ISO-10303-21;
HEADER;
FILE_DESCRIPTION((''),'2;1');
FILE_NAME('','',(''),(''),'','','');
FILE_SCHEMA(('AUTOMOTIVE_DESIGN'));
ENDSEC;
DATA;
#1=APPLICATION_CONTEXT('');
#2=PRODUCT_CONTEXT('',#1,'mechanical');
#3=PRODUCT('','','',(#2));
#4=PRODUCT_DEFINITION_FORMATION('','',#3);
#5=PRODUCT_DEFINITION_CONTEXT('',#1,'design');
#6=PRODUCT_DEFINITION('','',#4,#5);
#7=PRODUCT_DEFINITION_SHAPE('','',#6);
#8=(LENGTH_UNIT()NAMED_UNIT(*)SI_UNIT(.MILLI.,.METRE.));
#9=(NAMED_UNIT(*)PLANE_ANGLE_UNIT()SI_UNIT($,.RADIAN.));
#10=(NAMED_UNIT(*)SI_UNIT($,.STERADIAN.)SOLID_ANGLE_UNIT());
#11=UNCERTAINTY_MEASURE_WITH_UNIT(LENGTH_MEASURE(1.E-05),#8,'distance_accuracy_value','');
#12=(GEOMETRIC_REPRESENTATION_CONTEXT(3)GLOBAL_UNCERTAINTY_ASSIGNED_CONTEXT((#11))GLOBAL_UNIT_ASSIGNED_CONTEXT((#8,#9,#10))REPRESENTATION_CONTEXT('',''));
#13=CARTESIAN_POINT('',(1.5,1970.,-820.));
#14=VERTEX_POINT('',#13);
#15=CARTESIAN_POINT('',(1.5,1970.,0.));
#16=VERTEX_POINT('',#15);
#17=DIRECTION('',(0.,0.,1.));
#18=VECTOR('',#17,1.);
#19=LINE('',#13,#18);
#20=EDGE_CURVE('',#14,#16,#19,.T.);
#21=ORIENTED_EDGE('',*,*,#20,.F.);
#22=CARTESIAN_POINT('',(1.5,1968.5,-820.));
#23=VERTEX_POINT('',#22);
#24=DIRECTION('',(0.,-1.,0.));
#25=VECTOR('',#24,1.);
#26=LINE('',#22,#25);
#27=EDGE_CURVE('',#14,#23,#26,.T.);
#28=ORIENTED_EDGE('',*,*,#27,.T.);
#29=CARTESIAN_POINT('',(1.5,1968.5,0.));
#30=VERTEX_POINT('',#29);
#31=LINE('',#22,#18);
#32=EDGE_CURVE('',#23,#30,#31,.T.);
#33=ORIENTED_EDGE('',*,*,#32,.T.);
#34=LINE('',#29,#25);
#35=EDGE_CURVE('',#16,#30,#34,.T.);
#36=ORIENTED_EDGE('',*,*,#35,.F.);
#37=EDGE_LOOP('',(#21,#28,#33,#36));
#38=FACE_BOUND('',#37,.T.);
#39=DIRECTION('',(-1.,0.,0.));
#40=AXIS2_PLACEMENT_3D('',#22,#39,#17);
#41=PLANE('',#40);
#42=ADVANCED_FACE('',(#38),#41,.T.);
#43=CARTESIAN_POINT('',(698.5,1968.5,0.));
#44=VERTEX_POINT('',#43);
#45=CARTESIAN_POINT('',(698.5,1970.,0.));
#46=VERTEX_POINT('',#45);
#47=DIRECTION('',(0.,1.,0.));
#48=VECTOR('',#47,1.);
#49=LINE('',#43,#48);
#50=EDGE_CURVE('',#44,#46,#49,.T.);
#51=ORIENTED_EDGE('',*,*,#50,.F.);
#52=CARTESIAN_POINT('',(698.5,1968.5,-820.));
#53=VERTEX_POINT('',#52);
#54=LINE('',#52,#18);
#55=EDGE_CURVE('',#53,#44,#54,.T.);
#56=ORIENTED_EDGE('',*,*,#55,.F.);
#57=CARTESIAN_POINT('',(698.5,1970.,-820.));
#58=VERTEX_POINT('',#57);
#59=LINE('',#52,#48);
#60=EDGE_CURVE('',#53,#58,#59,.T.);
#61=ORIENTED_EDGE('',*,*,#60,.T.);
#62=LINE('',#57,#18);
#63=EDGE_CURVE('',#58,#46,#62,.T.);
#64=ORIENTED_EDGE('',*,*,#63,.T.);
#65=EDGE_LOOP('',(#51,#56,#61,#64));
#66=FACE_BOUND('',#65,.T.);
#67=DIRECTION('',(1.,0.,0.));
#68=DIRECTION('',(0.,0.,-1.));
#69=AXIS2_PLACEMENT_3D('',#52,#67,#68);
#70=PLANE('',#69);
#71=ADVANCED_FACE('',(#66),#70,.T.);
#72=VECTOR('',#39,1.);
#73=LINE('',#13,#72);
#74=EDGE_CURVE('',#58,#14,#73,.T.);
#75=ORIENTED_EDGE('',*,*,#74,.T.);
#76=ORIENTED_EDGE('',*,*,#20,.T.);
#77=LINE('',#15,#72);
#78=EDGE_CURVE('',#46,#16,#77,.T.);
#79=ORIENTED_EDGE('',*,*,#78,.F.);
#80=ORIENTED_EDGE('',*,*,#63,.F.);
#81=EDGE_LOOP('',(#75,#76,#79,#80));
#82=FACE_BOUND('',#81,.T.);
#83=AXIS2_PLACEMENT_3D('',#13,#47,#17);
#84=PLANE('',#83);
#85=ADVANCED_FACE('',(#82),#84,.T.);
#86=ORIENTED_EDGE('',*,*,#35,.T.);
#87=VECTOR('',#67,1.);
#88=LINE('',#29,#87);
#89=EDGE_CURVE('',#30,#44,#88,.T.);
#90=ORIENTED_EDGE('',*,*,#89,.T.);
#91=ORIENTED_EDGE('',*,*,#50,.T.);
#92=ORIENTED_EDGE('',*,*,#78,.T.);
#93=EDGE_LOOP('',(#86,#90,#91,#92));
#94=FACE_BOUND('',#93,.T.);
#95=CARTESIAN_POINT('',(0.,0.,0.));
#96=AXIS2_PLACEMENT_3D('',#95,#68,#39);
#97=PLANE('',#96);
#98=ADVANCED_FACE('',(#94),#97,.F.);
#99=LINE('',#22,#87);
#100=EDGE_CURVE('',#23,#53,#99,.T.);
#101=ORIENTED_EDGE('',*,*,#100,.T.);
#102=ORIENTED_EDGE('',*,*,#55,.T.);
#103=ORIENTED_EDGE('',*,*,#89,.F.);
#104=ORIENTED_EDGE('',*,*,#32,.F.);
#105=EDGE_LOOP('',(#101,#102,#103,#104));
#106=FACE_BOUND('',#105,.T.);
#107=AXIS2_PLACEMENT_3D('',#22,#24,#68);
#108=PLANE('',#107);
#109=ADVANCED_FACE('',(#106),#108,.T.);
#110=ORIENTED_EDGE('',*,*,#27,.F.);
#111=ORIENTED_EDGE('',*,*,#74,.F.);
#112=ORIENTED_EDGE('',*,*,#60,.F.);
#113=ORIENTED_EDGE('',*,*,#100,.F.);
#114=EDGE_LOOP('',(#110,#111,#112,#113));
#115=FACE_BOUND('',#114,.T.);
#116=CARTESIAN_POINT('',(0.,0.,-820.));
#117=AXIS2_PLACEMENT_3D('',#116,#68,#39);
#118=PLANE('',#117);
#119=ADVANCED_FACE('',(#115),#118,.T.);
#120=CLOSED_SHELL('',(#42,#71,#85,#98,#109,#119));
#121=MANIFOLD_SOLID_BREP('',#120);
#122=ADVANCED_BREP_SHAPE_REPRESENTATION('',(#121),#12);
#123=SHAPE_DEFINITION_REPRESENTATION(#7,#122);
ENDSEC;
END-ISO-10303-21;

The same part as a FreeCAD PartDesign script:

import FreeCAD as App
import Part
import Sketcher
from FreeCAD import Vector

doc = App.newDocument("Part")
body = doc.addObject("PartDesign::Body", "Body")

# Sketch on XY plane
sketch1 = doc.addObject("Sketcher::SketchObject", "Sketch")
body.addObject(sketch1)
sketch1.AttachmentSupport = (doc.XY_Plane, [""])
sketch1.MapMode = "FlatFace"
sketch1.addGeometry(Part.LineSegment(Vector(1.5, 1970, 0), Vector(1.5, 1968.5, 0)), False)
sketch1.addGeometry(Part.LineSegment(Vector(1.5, 1968.5, 0), Vector(698.5, 1968.5, 0)), False)
sketch1.addGeometry(Part.LineSegment(Vector(698.5, 1968.5, 0), Vector(698.5, 1970, 0)), False)
sketch1.addGeometry(Part.LineSegment(Vector(698.5, 1970, 0), Vector(1.5, 1970, 0)), False)
sketch1.addConstraint(Sketcher.Constraint("Coincident", 0, 2, 1, 1))
sketch1.addConstraint(Sketcher.Constraint("Coincident", 1, 2, 2, 1))
sketch1.addConstraint(Sketcher.Constraint("Coincident", 2, 2, 3, 1))
sketch1.addConstraint(Sketcher.Constraint("Coincident", 3, 2, 0, 1))
sketch1.addConstraint(Sketcher.Constraint("Vertical", 0))
sketch1.addConstraint(Sketcher.Constraint("Horizontal", 1))
sketch1.addConstraint(Sketcher.Constraint("Vertical", 2))
sketch1.addConstraint(Sketcher.Constraint("Horizontal", 3))
sketch1.addConstraint(Sketcher.Constraint("DistanceX", 1, 1, 1, 2, 697.0))
sketch1.addConstraint(Sketcher.Constraint("DistanceY", 0, 2, 0, 1, 1.5))
sketch1.addConstraint(Sketcher.Constraint("DistanceY", -1, 1, 2, 2, 1970.0))
sketch1.addConstraint(Sketcher.Constraint("DistanceX", -1, 1, 0, 2, 1.5))
pad1 = doc.addObject("PartDesign::Pad", "Pad")
body.addObject(pad1)
pad1.Profile = sketch1
pad1.Length = 820
pad1.Reversed = True

doc.recompute()
